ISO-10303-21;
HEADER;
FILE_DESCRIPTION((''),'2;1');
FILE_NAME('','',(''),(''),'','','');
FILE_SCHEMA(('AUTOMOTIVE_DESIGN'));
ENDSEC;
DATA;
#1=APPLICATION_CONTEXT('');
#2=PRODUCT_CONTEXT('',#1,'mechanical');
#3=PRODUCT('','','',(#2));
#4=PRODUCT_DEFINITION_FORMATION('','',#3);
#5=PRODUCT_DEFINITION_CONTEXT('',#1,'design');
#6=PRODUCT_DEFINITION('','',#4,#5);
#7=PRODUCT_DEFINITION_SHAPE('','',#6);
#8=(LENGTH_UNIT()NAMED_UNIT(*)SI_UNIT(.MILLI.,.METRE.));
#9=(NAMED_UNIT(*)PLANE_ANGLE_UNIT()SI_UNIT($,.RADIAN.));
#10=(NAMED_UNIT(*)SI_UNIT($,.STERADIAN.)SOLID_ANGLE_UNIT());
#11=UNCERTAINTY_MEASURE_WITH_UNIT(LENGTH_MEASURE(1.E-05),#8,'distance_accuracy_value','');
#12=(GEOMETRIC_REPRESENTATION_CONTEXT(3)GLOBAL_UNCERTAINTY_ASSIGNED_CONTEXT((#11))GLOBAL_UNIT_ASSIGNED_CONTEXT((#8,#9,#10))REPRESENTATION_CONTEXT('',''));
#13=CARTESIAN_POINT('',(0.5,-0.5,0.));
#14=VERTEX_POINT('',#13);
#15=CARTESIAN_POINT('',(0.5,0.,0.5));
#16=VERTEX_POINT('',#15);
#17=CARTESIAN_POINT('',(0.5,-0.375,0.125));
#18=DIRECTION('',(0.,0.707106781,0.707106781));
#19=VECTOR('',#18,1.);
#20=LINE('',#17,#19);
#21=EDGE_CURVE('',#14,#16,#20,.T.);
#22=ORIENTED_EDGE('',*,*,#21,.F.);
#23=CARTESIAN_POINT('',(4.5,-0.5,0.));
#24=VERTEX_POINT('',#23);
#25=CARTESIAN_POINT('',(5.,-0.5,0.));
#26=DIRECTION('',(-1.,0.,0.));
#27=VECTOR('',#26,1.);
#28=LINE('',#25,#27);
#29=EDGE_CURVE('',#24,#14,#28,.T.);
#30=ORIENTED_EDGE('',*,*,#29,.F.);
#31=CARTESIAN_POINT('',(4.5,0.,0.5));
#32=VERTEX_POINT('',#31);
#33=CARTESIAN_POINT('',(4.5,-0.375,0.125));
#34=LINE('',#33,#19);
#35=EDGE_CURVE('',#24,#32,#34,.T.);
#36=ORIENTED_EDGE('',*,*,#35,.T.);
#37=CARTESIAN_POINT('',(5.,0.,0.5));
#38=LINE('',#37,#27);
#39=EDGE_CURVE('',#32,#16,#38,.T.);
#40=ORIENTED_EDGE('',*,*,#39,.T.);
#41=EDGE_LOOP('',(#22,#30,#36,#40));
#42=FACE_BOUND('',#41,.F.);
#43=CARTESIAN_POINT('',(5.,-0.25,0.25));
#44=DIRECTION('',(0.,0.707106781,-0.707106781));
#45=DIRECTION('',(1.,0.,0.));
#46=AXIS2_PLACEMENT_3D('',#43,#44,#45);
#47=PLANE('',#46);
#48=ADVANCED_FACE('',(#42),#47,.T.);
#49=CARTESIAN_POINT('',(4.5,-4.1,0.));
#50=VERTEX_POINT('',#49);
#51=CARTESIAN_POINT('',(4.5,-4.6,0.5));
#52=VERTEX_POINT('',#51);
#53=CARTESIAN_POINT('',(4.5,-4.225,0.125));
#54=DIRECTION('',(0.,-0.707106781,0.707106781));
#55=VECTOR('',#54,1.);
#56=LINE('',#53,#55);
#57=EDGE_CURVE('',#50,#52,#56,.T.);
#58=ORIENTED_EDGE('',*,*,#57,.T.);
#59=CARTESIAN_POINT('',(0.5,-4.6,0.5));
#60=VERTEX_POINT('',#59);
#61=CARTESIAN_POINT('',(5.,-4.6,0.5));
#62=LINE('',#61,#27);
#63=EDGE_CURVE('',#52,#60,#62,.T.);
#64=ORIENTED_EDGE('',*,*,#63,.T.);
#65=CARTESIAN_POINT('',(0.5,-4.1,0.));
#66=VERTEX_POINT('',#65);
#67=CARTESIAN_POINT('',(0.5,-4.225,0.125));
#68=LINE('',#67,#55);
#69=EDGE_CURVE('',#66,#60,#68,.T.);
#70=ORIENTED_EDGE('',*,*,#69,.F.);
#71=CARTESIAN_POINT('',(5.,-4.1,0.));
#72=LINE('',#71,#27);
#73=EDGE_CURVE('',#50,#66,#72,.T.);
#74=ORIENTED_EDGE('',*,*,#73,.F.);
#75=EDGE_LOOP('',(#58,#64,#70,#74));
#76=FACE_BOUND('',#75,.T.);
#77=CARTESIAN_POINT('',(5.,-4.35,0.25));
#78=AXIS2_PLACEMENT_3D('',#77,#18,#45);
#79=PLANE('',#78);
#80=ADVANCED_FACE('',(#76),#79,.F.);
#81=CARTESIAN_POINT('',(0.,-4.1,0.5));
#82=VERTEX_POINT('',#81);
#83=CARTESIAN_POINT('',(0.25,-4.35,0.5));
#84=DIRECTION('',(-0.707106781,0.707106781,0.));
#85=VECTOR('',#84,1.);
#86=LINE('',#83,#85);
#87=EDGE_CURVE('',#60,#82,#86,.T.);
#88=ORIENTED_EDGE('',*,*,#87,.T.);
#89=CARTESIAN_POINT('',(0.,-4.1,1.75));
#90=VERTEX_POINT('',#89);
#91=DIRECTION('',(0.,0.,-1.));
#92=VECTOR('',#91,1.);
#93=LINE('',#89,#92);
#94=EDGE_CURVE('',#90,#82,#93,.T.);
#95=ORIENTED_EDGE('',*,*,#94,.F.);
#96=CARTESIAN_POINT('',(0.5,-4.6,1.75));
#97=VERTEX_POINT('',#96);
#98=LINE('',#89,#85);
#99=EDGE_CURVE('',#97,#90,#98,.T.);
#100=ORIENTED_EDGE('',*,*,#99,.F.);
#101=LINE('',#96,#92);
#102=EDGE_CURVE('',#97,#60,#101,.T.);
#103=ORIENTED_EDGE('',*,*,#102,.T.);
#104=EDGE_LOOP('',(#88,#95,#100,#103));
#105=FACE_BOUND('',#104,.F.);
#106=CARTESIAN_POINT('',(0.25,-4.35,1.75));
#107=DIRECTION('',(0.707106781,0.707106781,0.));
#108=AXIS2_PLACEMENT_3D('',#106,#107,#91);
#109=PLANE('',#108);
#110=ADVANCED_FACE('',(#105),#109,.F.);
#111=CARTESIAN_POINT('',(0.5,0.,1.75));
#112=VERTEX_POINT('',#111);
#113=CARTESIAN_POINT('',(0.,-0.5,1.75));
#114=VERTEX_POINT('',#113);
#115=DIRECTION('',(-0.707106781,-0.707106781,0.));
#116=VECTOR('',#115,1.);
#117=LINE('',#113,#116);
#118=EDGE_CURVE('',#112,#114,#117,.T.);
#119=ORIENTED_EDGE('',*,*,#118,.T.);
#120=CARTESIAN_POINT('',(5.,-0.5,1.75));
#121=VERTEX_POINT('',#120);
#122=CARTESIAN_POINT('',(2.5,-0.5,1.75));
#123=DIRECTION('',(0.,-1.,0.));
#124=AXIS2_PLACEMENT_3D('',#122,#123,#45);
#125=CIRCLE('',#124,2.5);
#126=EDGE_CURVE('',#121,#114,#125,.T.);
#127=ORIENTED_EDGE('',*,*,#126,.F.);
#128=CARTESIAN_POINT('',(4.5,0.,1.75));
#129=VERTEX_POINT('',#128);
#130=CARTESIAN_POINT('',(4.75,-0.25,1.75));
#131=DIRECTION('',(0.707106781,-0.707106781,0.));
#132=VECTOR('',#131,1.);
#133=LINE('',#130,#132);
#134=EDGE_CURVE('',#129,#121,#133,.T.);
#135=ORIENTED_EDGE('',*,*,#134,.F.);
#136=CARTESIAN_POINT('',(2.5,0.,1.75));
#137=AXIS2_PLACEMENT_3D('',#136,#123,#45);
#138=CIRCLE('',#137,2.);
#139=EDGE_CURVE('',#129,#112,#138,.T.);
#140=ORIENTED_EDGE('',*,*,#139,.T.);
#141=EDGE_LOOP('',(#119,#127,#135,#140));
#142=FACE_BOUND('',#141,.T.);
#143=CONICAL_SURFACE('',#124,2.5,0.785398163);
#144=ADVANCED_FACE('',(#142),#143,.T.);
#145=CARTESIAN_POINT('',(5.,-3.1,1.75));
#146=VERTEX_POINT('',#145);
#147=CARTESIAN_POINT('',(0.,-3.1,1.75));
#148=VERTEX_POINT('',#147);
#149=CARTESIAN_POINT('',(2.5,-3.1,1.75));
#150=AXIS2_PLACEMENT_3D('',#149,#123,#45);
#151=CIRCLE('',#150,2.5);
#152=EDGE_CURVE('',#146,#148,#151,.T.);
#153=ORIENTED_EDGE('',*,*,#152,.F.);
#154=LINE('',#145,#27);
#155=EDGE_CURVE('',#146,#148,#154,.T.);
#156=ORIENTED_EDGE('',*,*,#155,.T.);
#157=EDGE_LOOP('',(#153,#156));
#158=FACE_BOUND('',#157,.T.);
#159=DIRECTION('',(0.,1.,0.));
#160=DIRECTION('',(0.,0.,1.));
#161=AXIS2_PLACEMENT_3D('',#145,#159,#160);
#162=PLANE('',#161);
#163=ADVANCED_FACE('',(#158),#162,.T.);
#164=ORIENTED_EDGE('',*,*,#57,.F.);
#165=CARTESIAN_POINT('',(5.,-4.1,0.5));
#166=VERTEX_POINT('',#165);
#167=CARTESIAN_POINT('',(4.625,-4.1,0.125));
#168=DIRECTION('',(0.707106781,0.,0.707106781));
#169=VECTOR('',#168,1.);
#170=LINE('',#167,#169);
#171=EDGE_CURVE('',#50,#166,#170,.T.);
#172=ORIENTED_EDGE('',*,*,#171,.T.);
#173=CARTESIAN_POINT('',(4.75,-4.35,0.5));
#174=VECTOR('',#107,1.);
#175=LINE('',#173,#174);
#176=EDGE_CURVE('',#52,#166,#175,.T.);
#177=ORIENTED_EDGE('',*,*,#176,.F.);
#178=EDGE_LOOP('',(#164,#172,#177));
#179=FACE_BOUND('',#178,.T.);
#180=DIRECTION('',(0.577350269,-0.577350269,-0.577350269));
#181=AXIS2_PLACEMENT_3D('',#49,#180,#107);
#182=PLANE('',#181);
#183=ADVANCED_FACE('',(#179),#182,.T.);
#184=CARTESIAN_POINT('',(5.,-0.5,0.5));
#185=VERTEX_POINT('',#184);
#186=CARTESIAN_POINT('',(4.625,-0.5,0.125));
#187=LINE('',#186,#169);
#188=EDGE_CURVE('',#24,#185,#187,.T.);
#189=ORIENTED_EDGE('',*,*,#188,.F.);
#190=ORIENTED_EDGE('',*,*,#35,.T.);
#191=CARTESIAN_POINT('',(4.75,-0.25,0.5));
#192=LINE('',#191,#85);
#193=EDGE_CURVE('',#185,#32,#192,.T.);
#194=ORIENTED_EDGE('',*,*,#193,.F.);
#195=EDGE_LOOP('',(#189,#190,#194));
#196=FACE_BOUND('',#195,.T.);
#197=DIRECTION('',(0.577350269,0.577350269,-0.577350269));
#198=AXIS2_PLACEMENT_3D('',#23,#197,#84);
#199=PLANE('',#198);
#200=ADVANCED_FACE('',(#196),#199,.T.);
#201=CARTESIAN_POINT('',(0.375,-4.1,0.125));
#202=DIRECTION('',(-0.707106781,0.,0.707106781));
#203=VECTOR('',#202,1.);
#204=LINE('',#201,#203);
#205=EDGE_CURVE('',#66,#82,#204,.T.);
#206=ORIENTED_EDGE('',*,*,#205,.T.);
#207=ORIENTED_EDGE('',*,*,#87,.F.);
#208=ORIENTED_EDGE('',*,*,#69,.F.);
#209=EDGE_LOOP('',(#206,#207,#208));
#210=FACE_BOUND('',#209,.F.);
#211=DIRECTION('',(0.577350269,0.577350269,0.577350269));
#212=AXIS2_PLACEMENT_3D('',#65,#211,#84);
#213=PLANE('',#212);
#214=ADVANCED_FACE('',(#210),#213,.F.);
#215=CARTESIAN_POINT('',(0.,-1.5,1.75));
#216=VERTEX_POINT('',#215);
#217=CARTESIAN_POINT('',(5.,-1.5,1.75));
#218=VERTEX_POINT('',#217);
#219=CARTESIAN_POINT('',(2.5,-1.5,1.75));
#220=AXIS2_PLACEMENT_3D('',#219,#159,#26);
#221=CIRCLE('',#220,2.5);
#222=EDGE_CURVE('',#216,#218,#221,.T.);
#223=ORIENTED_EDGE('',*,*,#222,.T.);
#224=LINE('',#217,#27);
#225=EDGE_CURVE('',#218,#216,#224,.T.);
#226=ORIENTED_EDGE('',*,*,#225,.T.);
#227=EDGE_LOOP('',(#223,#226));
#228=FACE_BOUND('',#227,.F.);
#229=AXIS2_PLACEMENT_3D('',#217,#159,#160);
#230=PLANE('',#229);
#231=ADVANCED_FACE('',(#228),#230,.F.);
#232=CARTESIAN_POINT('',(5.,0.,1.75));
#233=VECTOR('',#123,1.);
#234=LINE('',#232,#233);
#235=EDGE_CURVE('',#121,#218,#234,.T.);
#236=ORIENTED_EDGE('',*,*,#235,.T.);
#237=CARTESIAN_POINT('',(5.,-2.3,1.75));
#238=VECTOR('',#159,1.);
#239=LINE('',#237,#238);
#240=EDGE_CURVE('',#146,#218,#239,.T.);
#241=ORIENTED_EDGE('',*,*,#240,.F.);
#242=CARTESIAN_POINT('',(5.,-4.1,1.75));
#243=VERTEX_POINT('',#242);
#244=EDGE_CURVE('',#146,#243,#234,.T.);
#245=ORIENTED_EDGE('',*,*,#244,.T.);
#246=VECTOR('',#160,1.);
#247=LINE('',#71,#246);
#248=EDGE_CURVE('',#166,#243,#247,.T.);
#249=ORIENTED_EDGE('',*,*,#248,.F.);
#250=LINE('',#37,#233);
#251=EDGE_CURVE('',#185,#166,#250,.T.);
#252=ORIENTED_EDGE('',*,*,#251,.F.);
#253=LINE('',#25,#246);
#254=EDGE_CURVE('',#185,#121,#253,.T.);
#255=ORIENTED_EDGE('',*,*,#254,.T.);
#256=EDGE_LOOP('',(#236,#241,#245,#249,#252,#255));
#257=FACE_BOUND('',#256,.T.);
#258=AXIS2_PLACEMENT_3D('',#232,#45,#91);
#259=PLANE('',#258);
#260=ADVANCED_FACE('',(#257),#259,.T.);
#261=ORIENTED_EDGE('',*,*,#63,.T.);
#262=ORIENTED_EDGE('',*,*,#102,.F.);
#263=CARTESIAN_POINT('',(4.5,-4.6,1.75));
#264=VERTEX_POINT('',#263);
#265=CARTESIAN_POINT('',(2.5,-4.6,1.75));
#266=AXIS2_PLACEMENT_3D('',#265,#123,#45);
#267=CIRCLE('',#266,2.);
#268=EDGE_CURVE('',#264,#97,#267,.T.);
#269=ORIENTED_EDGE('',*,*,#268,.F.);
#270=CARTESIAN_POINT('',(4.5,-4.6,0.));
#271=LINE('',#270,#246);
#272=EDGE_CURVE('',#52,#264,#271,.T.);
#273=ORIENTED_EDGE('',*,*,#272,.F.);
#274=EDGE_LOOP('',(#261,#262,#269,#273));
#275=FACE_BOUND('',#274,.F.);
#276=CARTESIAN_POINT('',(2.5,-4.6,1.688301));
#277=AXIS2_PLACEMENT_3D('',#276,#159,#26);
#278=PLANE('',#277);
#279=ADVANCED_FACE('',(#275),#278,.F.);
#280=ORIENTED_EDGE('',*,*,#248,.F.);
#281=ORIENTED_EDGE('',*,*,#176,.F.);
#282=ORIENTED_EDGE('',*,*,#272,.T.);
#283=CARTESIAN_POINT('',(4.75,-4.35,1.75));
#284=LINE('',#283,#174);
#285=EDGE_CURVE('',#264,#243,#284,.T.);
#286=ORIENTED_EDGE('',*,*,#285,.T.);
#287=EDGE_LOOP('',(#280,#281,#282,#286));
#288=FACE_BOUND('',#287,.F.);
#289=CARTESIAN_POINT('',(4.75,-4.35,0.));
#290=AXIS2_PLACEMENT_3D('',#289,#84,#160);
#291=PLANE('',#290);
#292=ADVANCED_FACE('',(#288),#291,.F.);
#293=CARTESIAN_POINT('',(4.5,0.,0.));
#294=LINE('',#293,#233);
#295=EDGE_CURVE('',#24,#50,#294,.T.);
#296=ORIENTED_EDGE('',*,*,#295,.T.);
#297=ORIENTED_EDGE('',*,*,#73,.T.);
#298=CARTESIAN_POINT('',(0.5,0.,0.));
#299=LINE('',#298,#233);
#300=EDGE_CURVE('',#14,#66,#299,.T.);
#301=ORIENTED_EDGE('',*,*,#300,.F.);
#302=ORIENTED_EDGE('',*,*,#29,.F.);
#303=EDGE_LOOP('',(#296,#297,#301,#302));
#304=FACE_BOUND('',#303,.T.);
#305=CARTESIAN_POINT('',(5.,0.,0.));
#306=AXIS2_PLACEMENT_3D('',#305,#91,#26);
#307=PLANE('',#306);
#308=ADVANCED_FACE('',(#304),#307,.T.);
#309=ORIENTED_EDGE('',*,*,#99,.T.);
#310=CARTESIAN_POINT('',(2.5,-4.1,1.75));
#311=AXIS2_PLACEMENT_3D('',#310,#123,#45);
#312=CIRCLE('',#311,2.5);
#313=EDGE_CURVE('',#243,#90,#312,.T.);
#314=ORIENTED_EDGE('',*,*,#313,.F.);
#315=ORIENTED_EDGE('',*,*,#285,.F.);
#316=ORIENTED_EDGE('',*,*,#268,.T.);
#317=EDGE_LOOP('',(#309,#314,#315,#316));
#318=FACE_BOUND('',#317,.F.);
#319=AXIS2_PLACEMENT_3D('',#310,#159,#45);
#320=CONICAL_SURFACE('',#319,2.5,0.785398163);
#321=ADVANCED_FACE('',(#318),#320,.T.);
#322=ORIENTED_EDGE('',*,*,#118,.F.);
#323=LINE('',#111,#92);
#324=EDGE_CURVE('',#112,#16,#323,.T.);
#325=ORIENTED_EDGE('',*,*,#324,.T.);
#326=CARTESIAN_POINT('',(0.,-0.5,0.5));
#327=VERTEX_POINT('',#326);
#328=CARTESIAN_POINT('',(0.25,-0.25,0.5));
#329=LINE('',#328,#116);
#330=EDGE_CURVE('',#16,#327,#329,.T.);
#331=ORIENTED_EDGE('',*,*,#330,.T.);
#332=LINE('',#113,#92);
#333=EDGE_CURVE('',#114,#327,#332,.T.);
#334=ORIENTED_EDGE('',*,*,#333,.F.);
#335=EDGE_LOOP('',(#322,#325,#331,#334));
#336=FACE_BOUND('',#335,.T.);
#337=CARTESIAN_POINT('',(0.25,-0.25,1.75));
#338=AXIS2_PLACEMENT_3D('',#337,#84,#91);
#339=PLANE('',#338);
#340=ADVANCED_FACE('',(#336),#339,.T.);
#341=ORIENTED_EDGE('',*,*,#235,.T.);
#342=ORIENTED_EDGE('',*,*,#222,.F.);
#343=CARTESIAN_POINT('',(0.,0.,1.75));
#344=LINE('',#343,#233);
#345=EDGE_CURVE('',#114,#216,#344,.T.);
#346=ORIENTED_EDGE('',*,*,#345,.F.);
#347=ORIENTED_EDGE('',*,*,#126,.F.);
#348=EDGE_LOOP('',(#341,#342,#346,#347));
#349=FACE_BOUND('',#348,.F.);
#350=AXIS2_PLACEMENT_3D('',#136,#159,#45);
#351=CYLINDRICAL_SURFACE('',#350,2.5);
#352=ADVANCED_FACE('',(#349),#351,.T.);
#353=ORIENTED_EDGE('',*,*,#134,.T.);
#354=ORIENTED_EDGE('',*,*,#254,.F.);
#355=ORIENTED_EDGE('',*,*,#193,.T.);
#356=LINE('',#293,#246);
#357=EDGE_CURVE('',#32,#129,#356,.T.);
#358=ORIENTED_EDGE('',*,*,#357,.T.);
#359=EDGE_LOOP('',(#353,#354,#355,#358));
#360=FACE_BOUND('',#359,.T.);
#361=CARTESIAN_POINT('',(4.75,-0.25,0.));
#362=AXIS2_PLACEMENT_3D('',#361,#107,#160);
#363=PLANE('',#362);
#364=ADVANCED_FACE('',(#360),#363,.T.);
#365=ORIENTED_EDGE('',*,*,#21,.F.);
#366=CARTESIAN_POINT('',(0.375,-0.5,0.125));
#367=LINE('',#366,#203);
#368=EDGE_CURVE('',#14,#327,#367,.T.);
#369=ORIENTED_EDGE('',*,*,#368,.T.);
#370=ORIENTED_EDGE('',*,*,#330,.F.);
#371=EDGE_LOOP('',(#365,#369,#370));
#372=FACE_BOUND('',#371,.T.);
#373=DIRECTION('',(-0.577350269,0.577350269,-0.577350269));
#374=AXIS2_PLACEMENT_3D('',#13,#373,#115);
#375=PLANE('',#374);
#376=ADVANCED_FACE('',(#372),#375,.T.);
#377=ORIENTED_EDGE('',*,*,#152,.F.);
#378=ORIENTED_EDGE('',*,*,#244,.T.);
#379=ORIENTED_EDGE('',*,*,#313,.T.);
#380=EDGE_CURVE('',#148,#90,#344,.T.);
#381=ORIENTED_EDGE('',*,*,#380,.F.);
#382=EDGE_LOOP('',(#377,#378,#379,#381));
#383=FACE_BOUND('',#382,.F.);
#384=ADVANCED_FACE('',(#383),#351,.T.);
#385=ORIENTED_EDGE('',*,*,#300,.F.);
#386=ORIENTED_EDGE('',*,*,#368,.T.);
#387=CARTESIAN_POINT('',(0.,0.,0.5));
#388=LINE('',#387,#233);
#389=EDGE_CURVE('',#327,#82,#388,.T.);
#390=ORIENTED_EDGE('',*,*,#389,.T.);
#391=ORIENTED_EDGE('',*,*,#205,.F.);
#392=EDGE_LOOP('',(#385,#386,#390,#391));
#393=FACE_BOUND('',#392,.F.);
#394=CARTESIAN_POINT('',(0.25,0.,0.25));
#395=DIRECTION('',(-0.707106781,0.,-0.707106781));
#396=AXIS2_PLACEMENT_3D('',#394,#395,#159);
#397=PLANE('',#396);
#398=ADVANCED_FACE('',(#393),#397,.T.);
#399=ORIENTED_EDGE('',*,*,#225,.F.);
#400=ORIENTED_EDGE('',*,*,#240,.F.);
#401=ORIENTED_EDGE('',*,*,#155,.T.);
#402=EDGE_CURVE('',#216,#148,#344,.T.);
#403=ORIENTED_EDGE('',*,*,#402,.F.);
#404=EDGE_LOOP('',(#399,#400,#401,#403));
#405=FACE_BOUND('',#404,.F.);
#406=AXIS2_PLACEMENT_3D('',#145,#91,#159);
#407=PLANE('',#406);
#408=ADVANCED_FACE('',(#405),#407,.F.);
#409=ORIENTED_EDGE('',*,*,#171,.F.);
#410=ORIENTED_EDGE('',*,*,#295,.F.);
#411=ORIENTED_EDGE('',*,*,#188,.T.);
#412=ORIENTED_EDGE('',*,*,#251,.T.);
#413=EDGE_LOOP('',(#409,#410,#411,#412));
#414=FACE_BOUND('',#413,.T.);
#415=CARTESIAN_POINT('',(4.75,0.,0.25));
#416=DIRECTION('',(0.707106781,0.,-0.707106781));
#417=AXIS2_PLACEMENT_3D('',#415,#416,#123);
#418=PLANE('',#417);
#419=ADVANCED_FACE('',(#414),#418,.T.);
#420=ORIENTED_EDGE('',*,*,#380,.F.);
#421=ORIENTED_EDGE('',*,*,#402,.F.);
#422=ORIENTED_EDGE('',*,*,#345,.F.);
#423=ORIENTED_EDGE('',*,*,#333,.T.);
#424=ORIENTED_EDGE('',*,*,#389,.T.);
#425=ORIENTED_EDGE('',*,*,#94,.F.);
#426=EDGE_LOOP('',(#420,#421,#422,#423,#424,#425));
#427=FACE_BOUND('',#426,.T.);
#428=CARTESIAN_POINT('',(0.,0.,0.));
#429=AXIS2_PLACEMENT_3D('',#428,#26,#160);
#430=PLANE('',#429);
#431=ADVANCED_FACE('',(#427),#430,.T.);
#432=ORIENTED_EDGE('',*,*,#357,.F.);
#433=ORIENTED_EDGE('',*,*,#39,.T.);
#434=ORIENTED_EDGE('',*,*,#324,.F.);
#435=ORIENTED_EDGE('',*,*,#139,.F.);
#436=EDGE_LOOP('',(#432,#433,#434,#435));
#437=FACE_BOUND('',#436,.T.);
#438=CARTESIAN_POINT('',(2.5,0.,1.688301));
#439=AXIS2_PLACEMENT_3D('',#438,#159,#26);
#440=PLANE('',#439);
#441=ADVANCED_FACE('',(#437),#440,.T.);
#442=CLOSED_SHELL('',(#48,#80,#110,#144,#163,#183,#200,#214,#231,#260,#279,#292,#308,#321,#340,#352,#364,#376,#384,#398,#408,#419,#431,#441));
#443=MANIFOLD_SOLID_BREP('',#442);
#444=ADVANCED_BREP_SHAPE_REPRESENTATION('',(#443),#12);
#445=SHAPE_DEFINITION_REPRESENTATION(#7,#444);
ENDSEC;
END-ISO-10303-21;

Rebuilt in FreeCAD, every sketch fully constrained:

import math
import FreeCAD as App
import Part
import Sketcher
Q = App.Units.Quantity


def edges_at(feature, points):
    """Names of the edges that pass closest to the given points."""
    edges = feature.Shape.Edges
    near = lambda p: min(range(len(edges)), key=lambda i: edges[i].distToShape(Part.Vertex(*p))[0])
    return sorted({f"Edge{near(p) + 1}" for p in points})

doc = App.newDocument("Part")
body = doc.addObject("PartDesign::Body", "Body")

sketch1 = doc.addObject("Sketcher::SketchObject", "Sketch")
body.addObject(sketch1)
sketch1.AttachmentSupport = (doc.XZ_Plane, [""])
sketch1.MapMode = "FlatFace"
sketch1.addGeometry([
    Part.LineSegment(App.Vector(0, 1.8, 0), App.Vector(0, 0, 0)),
    Part.LineSegment(App.Vector(0, 0, 0), App.Vector(5, 0, 0)),
    Part.LineSegment(App.Vector(5, 0, 0), App.Vector(5, 1.8, 0)),
    Part.ArcOfCircle(Part.Circle(App.Vector(2.5, 1.8, 0), App.Vector(0, 0, 1), 2.5), math.radians(0), math.radians(180)),
], False)
sketch1.addConstraint([
    Sketcher.Constraint("Coincident", 0, 2, 1, 1),
    Sketcher.Constraint("Coincident", 1, 2, 2, 1),
    Sketcher.Constraint("Tangent", 2, 2, 3, 1),
    Sketcher.Constraint("Tangent", 3, 2, 0, 1),
    Sketcher.Constraint("Vertical", 0),
    Sketcher.Constraint("Horizontal", 1),
    Sketcher.Constraint("Vertical", 2),
    Sketcher.Constraint("Coincident", 0, 2, -1, 1),
    Sketcher.Constraint("Radius", 3, Q("2.5 mm")),
    Sketcher.Constraint("DistanceY", 0, 2, 0, 1, Q("1.75 mm")),
])
pad1 = doc.addObject("PartDesign::Pad", "Pad")
body.addObject(pad1)
pad1.Profile = sketch1
pad1.Length = 4.6

sketch2 = doc.addObject("Sketcher::SketchObject", "Sketch001")
body.addObject(sketch2)
sketch2.AttachmentSupport = (doc.YZ_Plane, [""])
sketch2.MapMode = "FlatFace"
sketch2.AttachmentOffset = App.Placement(App.Vector(0, 0, 5), App.Rotation())
sketch2.addGeometry([
    Part.LineSegment(App.Vector(-3.1, 4.2, 0), App.Vector(-3.1, 1.8, 0)),
    Part.LineSegment(App.Vector(-3.1, 1.8, 0), App.Vector(-1.5, 1.8, 0)),
    Part.LineSegment(App.Vector(-1.5, 1.8, 0), App.Vector(-1.5, 4.2, 0)),
    Part.LineSegment(App.Vector(-1.5, 4.2, 0), App.Vector(-3.1, 4.2, 0)),
], False)
sketch2.addConstraint([
    Sketcher.Constraint("Coincident", 0, 2, 1, 1),
    Sketcher.Constraint("Coincident", 1, 2, 2, 1),
    Sketcher.Constraint("Coincident", 2, 2, 3, 1),
    Sketcher.Constraint("Coincident", 3, 2, 0, 1),
    Sketcher.Constraint("Vertical", 0),
    Sketcher.Constraint("Horizontal", 1),
    Sketcher.Constraint("Vertical", 2),
    Sketcher.Constraint("Horizontal", 3),
    Sketcher.Constraint("DistanceX", 1, 1, 1, 2, Q("1.6 mm")),
    Sketcher.Constraint("DistanceY", 0, 2, 0, 1, Q("2.5 mm")),
    Sketcher.Constraint("DistanceX", 0, 2, -1, 1, Q("3.1 mm")),
    Sketcher.Constraint("DistanceY", -1, 1, 0, 2, Q("1.75 mm")),
])
pocket1 = doc.addObject("PartDesign::Pocket", "Pocket")
body.addObject(pocket1)
pocket1.Profile = sketch2
pocket1.Type = "ThroughAll"
doc.recompute()

chamfer = doc.addObject("PartDesign::Chamfer", "Chamfer")
body.addObject(chamfer)
chamfer.Base = (pocket1, edges_at(pocket1, [
    (2.5, -4.6, 4.25),
    (2.5, -4.6, 0),
    (2.5, 0, 4.25),
    (5, -2.3, 0),
    (2.5, 0, 0),
    (0, -2.3, 0),
]))
chamfer.Size = 0.5

doc.recompute()
